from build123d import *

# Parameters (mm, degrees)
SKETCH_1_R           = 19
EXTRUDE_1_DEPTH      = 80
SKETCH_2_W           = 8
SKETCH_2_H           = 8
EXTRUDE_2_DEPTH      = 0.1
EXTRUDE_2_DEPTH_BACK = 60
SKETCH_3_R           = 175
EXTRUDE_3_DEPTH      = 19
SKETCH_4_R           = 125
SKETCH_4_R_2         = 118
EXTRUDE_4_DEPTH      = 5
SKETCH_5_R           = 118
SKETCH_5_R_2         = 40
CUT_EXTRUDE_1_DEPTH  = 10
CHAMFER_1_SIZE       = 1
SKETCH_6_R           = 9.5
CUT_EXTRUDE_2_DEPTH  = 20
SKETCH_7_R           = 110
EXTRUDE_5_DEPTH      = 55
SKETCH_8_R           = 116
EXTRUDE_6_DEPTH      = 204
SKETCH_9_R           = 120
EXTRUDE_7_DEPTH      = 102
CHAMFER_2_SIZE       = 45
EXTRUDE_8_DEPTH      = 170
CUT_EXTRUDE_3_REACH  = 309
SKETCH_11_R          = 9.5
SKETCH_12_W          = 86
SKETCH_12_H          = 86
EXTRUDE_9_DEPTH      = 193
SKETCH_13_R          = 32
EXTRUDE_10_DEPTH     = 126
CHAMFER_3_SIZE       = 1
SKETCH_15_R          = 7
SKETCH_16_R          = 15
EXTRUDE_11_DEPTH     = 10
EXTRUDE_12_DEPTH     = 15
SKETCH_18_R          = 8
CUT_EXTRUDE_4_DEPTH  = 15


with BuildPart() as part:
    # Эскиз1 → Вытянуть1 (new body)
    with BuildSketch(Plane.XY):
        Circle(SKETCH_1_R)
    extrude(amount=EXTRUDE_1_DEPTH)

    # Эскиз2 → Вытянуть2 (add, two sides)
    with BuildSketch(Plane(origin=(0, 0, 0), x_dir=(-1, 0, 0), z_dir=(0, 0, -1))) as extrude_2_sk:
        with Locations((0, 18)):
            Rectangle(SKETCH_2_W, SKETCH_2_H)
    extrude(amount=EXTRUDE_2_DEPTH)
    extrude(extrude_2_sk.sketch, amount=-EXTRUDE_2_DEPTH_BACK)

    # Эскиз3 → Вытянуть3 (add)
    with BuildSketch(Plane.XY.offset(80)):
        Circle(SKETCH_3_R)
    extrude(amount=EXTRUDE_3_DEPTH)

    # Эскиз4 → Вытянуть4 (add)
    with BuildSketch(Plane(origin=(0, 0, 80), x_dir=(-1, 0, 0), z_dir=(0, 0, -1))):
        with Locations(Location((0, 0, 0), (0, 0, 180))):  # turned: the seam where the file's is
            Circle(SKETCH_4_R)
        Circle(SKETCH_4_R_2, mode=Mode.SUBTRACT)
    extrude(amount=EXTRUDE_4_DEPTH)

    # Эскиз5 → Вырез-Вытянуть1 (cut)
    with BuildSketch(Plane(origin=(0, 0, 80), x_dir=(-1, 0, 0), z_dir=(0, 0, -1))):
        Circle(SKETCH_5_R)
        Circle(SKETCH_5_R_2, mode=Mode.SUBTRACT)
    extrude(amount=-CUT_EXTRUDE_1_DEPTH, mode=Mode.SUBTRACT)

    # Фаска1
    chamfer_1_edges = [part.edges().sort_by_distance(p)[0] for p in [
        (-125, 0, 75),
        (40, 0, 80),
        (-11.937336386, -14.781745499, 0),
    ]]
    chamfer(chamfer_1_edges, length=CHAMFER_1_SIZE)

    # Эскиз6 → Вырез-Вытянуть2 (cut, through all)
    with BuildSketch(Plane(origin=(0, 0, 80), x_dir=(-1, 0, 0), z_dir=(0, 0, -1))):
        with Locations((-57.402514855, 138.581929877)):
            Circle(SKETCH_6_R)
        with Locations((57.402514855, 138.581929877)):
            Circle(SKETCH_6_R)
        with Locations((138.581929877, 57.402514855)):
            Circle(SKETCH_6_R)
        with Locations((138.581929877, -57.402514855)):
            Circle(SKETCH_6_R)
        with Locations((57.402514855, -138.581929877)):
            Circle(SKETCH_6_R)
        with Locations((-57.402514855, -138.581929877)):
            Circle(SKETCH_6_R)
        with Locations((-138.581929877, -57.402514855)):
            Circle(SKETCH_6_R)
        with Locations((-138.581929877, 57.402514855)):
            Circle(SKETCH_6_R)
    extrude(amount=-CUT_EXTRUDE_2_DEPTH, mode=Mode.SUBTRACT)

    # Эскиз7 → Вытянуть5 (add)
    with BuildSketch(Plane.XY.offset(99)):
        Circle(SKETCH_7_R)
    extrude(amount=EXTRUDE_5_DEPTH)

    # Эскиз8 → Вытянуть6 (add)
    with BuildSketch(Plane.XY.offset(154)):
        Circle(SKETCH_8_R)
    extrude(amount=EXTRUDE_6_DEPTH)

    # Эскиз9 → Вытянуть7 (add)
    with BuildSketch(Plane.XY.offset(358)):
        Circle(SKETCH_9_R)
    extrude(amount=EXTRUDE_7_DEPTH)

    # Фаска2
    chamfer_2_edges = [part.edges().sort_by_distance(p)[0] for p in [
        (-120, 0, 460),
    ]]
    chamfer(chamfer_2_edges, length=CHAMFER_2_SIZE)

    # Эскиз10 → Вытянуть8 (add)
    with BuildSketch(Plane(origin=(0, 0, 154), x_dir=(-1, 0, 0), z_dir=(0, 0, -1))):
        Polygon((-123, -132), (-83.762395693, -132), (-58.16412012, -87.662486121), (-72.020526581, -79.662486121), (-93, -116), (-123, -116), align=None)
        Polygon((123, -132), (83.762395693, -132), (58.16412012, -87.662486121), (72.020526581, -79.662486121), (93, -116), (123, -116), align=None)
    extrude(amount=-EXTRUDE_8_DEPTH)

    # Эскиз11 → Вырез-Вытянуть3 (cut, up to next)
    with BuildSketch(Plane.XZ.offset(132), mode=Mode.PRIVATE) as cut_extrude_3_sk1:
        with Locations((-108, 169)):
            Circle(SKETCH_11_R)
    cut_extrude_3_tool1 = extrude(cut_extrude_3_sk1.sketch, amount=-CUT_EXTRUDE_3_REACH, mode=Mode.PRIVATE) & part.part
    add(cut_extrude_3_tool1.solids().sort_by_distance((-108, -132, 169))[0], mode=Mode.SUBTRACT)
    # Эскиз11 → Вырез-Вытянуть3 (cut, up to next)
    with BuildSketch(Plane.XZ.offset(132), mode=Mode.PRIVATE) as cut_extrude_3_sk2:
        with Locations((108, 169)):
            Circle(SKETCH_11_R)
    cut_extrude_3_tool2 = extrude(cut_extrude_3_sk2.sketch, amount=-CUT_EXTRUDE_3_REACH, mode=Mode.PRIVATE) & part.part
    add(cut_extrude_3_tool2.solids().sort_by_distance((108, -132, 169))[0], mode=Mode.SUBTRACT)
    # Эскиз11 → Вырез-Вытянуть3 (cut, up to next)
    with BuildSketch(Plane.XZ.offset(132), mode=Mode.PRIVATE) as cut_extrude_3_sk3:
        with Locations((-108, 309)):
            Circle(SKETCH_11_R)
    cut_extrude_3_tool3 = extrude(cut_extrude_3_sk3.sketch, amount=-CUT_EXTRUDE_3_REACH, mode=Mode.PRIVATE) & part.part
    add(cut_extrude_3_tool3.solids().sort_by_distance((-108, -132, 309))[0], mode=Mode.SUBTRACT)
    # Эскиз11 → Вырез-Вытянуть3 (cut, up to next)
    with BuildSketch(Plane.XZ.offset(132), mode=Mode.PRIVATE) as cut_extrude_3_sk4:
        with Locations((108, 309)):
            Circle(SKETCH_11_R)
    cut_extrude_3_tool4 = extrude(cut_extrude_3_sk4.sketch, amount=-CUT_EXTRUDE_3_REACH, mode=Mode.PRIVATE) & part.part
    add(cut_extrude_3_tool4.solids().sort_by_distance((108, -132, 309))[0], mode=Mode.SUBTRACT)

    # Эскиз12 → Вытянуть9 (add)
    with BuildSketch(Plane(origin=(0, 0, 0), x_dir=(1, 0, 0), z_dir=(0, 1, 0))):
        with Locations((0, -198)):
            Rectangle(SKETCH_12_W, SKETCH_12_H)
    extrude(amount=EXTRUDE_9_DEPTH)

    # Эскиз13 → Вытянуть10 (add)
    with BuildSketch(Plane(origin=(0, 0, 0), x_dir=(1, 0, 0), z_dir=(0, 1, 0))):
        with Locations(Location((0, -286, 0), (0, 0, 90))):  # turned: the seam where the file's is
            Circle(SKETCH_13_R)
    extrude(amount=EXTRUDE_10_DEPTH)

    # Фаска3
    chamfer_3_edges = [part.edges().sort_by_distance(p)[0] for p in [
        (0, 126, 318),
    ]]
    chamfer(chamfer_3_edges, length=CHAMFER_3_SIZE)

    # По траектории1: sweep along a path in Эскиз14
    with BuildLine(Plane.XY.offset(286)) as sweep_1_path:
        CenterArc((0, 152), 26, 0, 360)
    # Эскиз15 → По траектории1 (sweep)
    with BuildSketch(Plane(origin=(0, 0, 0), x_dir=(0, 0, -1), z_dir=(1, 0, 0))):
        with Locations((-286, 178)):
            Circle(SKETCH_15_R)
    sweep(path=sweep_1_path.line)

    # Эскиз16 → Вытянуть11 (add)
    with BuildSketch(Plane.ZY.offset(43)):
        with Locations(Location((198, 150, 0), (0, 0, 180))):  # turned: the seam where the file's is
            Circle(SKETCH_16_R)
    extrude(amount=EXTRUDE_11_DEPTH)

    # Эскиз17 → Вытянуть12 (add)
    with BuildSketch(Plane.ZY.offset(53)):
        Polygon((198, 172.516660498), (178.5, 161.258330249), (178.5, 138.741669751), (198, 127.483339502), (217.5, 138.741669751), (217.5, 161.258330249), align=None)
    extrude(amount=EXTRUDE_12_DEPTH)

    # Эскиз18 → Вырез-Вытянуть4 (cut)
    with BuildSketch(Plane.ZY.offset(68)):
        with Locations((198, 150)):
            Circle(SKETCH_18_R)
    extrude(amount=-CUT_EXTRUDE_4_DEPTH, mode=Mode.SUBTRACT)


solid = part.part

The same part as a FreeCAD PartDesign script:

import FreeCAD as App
import Part
import Sketcher
from FreeCAD import Vector
Q = App.Units.Quantity


def edges_at(feature, points):
    """Names of the edges that pass closest to the given points."""
    edges = feature.Shape.Edges
    near = lambda p: min(range(len(edges)), key=lambda i: edges[i].distToShape(Part.Vertex(*p))[0])
    return sorted({f"Edge{near(p) + 1}" for p in points})


def add_polygon(sketch, points):
    """Adds a closed chain of lines whose ends are joined by coincident constraints."""
    first, n = sketch.GeometryCount, len(points)
    for a, b in zip(points, points[1:] + points[:1]):
        sketch.addGeometry(Part.LineSegment(App.Vector(*a, 0), App.Vector(*b, 0)), False)
    for i in range(n):
        sketch.addConstraint(Sketcher.Constraint("Coincident", first + i, 2, first + (i + 1) % n, 1))

doc = App.newDocument("Part")
body = doc.addObject("PartDesign::Body", "Body")

# Sketch on XY plane
sketch1 = doc.addObject("Sketcher::SketchObject", "Sketch")
body.addObject(sketch1)
sketch1.AttachmentSupport = (doc.XY_Plane, [""])
sketch1.MapMode = "FlatFace"
sketch1.addGeometry(Part.Circle(Vector(0, 0, 0), Vector(0, 0, 1), 19), False)
sketch1.addConstraint([
    Sketcher.Constraint("Coincident", 0, 3, -1, 1),
    Sketcher.Constraint("Diameter", 0, Q("38 mm")),
])
pad1 = doc.addObject("PartDesign::Pad", "Pad")
body.addObject(pad1)
pad1.Profile = sketch1
pad1.Length = 80

# Sketch on XY plane
sketch2 = doc.addObject("Sketcher::SketchObject", "Sketch001")
body.addObject(sketch2)
sketch2.AttachmentSupport = (doc.XY_Plane, [""])
sketch2.MapMode = "FlatFace"
add_polygon(sketch2, [(4, 22), (4, 14), (-4, 14), (-4, 22)])  # lines 0-3
sketch2.addConstraint([
    Sketcher.Constraint("Vertical", 0),
    Sketcher.Constraint("Horizontal", 1),
    Sketcher.Constraint("Vertical", 2),
    Sketcher.Constraint("Horizontal", 3),
    Sketcher.Constraint("Equal", 3, 0),
    Sketcher.Constraint("DistanceX", 1, 2, 1, 1, Q("8 mm")),
    Sketcher.Constraint("DistanceX", -1, 1, 0, 2, Q("4 mm")),
    Sketcher.Constraint("DistanceY", -1, 1, 0, 2, Q("14 mm")),
])
pad2 = doc.addObject("PartDesign::Pad", "Pad001")
body.addObject(pad2)
pad2.Profile = sketch2
pad2.Type = "TwoLengths"
pad2.Length = 0.1
pad2.Length2 = 60
pad2.Reversed = True

# Sketch on XY plane
sketch3 = doc.addObject("Sketcher::SketchObject", "Sketch002")
body.addObject(sketch3)
sketch3.AttachmentSupport = (doc.XY_Plane, [""])
sketch3.MapMode = "FlatFace"
sketch3.AttachmentOffset = App.Placement(Vector(0, 0, 80), App.Rotation())
sketch3.addGeometry(Part.Circle(Vector(0, 0, 0), Vector(0, 0, 1), 175), False)
sketch3.addConstraint([
    Sketcher.Constraint("Coincident", 0, 3, -1, 1),
    Sketcher.Constraint("Diameter", 0, Q("350 mm")),
])
pad3 = doc.addObject("PartDesign::Pad", "Pad002")
body.addObject(pad3)
pad3.Profile = sketch3
pad3.Length = 19

# Sketch on XY plane
sketch4 = doc.addObject("Sketcher::SketchObject", "Sketch003")
body.addObject(sketch4)
sketch4.AttachmentSupport = (doc.XY_Plane, [""])
sketch4.MapMode = "FlatFace"
sketch4.AttachmentOffset = App.Placement(Vector(0, 0, 80), App.Rotation())
sketch4.addGeometry([
    Part.Circle(Vector(0, 0, 0), Vector(0, 0, 1), 125),
    Part.Circle(Vector(0, 0, 0), Vector(0, 0, 1), 118),
], False)
sketch4.addConstraint([
    Sketcher.Constraint("Coincident", 0, 3, -1, 1),
    Sketcher.Constraint("Coincident", 1, 3, -1, 1),
    Sketcher.Constraint("Diameter", 0, Q("250 mm")),
    Sketcher.Constraint("Diameter", 1, Q("236 mm")),
])
pad4 = doc.addObject("PartDesign::Pad", "Pad003")
body.addObject(pad4)
pad4.Profile = sketch4
pad4.Length = 5
pad4.Reversed = True

# Sketch on XY plane
sketch5 = doc.addObject("Sketcher::SketchObject", "Sketch004")
body.addObject(sketch5)
sketch5.AttachmentSupport = (doc.XY_Plane, [""])
sketch5.MapMode = "FlatFace"
sketch5.AttachmentOffset = App.Placement(Vector(0, 0, 80), App.Rotation())
sketch5.addGeometry([
    Part.Circle(Vector(0, 0, 0), Vector(0, 0, 1), 118),
    Part.Circle(Vector(0, 0, 0), Vector(0, 0, 1), 40),
], False)
sketch5.addConstraint([
    Sketcher.Constraint("Coincident", 0, 3, -1, 1),
    Sketcher.Constraint("Coincident", 1, 3, -1, 1),
    Sketcher.Constraint("Diameter", 0, Q("236 mm")),
    Sketcher.Constraint("Diameter", 1, Q("80 mm")),
])
pocket1 = doc.addObject("PartDesign::Pocket", "Pocket")
body.addObject(pocket1)
pocket1.Profile = sketch5
pocket1.Length = 10
pocket1.Reversed = True
doc.recompute()

chamfer = doc.addObject("PartDesign::Chamfer", "Chamfer")
body.addObject(chamfer)
chamfer.Base = (pocket1, edges_at(pocket1, [(-125, 0, 75), (40, 0, 80), (-11.937, -14.782, 0)]))
chamfer.Size = 1

# Sketch on XY plane
sketch6 = doc.addObject("Sketcher::SketchObject", "Sketch005")
body.addObject(sketch6)
sketch6.AttachmentSupport = (doc.XY_Plane, [""])
sketch6.MapMode = "FlatFace"
sketch6.AttachmentOffset = App.Placement(Vector(0, 0, 80), App.Rotation())
sketch6.addGeometry([
    Part.Circle(Vector(57, 139, 0), Vector(0, 0, 1), 10),  # 0
    Part.Circle(Vector(-57, 139, 0), Vector(0, 0, 1), 10),  # 1
    Part.Circle(Vector(-139, 57, 0), Vector(0, 0, 1), 10),  # 2
    Part.Circle(Vector(-139, -57, 0), Vector(0, 0, 1), 10),  # 3
    Part.Circle(Vector(-57, -139, 0), Vector(0, 0, 1), 10),  # 4
    Part.Circle(Vector(57, -139, 0), Vector(0, 0, 1), 10),  # 5
    Part.Circle(Vector(139, -57, 0), Vector(0, 0, 1), 10),  # 6
    Part.Circle(Vector(139, 57, 0), Vector(0, 0, 1), 10),  # 7
], False)
sketch6.addConstraint([
    Sketcher.Constraint("Equal", 0, 1),
    Sketcher.Constraint("Equal", 1, 2),
    Sketcher.Constraint("Equal", 2, 3),
    Sketcher.Constraint("Equal", 3, 4),
    Sketcher.Constraint("Equal", 4, 5),
    Sketcher.Constraint("Equal", 5, 6),
    Sketcher.Constraint("Equal", 6, 7),
    Sketcher.Constraint("Symmetric", 0, 3, 4, 3, -1, 1),
    Sketcher.Constraint("Symmetric", 1, 3, 5, 3, -1, 1),
    Sketcher.Constraint("Symmetric", 2, 3, 6, 3, -1, 1),
    Sketcher.Constraint("Symmetric", 3, 3, 7, 3, -1, 1),
    Sketcher.Constraint("Symmetric", 0, 3, 1, 3, -2),
    Sketcher.Constraint("Symmetric", 3, 3, 6, 3, -2),
    Sketcher.Constraint("Diameter", 0, Q("19 mm")),
    Sketcher.Constraint("DistanceY", -1, 1, 0, 3, Q("138.58193 mm")),
    Sketcher.Constraint("DistanceX", 2, 3, -1, 1, Q("138.58193 mm")),
    Sketcher.Constraint("DistanceX", 1, 3, 0, 3, Q("114.80503 mm")),
    Sketcher.Constraint("DistanceY", 3, 3, 2, 3, Q("114.80503 mm")),
])
pocket2 = doc.addObject("PartDesign::Pocket", "Pocket001")
body.addObject(pocket2)
pocket2.Profile = sketch6
pocket2.Type = "ThroughAll"
pocket2.Reversed = True

# Sketch on XY plane
sketch7 = doc.addObject("Sketcher::SketchObject", "Sketch006")
body.addObject(sketch7)
sketch7.AttachmentSupport = (doc.XY_Plane, [""])
sketch7.MapMode = "FlatFace"
sketch7.AttachmentOffset = App.Placement(Vector(0, 0, 99), App.Rotation())
sketch7.addGeometry(Part.Circle(Vector(0, 0, 0), Vector(0, 0, 1), 110), False)
sketch7.addConstraint([
    Sketcher.Constraint("Coincident", 0, 3, -1, 1),
    Sketcher.Constraint("Diameter", 0, Q("220 mm")),
])
pad5 = doc.addObject("PartDesign::Pad", "Pad004")
body.addObject(pad5)
pad5.Profile = sketch7
pad5.Length = 55

# Sketch on XY plane
sketch8 = doc.addObject("Sketcher::SketchObject", "Sketch007")
body.addObject(sketch8)
sketch8.AttachmentSupport = (doc.XY_Plane, [""])
sketch8.MapMode = "FlatFace"
sketch8.AttachmentOffset = App.Placement(Vector(0, 0, 154), App.Rotation())
sketch8.addGeometry(Part.Circle(Vector(0, 0, 0), Vector(0, 0, 1), 116), False)
sketch8.addConstraint([
    Sketcher.Constraint("Coincident", 0, 3, -1, 1),
    Sketcher.Constraint("Diameter", 0, Q("232 mm")),
])
pad6 = doc.addObject("PartDesign::Pad", "Pad005")
body.addObject(pad6)
pad6.Profile = sketch8
pad6.Length = 204

# Sketch on XY plane
sketch9 = doc.addObject("Sketcher::SketchObject", "Sketch008")
body.addObject(sketch9)
sketch9.AttachmentSupport = (doc.XY_Plane, [""])
sketch9.MapMode = "FlatFace"
sketch9.AttachmentOffset = App.Placement(Vector(0, 0, 358), App.Rotation())
sketch9.addGeometry(Part.Circle(Vector(0, 0, 0), Vector(0, 0, 1), 120), False)
sketch9.addConstraint([
    Sketcher.Constraint("Coincident", 0, 3, -1, 1),
    Sketcher.Constraint("Diameter", 0, Q("240 mm")),
])
pad7 = doc.addObject("PartDesign::Pad", "Pad006")
body.addObject(pad7)
pad7.Profile = sketch9
pad7.Length = 102
doc.recompute()

chamfer2 = doc.addObject("PartDesign::Chamfer", "Chamfer001")
body.addObject(chamfer2)
chamfer2.Base = (pad7, edges_at(pad7, [(-120, 0, 460)]))
chamfer2.Size = 45

# Sketch on XY plane
sketch10 = doc.addObject("Sketcher::SketchObject", "Sketch009")
body.addObject(sketch10)
sketch10.AttachmentSupport = (doc.XY_Plane, [""])
sketch10.MapMode = "FlatFace"
sketch10.AttachmentOffset = App.Placement(Vector(0, 0, 154), App.Rotation())
add_polygon(sketch10, [(123, -132), (84, -132), (58, -88), (72, -80), (93, -116), (123, -116)])  # lines 0-5
add_polygon(sketch10, [(-84, -132), (-123, -132), (-123, -116), (-93, -116), (-72, -80), (-58, -88)])  # lines 6-11
sketch10.addConstraint([
    Sketcher.Constraint("Horizontal", 0),
    Sketcher.Constraint("Horizontal", 4),
    Sketcher.Constraint("Vertical", 5),
    Sketcher.Constraint("Horizontal", 6),
    Sketcher.Constraint("Vertical", 7),
    Sketcher.Constraint("Horizontal", 8),
    Sketcher.Constraint("Symmetric", 5, 2, 6, 2, -2),
    Sketcher.Constraint("Symmetric", 3, 2, 8, 2, -2),
    Sketcher.Constraint("Symmetric", 2, 2, 9, 2, -2),
    Sketcher.Constraint("Symmetric", 1, 2, 10, 2, -2),
    Sketcher.Constraint("Perpendicular", 1, 2),
    Sketcher.Constraint("Perpendicular", 2, 3),
    Sketcher.Constraint("Perpendicular", 10, 11),
    Sketcher.Constraint("DistanceX", 4, 1, 4, 2, Q("30 mm")),
    Sketcher.Constraint("DistanceY", 5, 2, 5, 1, Q("16 mm")),
    Sketcher.Constraint("Angle", 1, Q("120 deg")),
    Sketcher.Constraint("Distance", 2, Q("16 mm")),
    Sketcher.Constraint("DistanceY", 0, 2, -1, 1, Q("132 mm")),
    Sketcher.Constraint("DistanceX", -1, 1, 3, 2, Q("93 mm")),
    Sketcher.Constraint("Distance", 1, Q("51.196551 mm")),
])
pad8 = doc.addObject("PartDesign::Pad", "Pad007")
body.addObject(pad8)
pad8.Profile = sketch10
pad8.Length = 170

# Sketch on XZ plane
sketch11 = doc.addObject("Sketcher::SketchObject", "Sketch010")
body.addObject(sketch11)
sketch11.AttachmentSupport = (doc.XZ_Plane, [""])
sketch11.MapMode = "FlatFace"
sketch11.AttachmentOffset = App.Placement(Vector(0, 0, 132), App.Rotation())
sketch11.addGeometry(Part.Circle(Vector(-108, 169, 0), Vector(0, 0, 1), 10), False)
sketch11.addConstraint([
    Sketcher.Constraint("Diameter", 0, Q("19 mm")),
    Sketcher.Constraint("DistanceX", 0, 3, -1, 1, Q("108 mm")),
    Sketcher.Constraint("DistanceY", -1, 1, 0, 3, Q("169 mm")),
])
pocket3 = doc.addObject("PartDesign::Pocket", "Pocket002")
body.addObject(pocket3)
pocket3.Profile = sketch11
pocket3.Type = "UpToFirst"

# Sketch on XZ plane
sketch12 = doc.addObject("Sketcher::SketchObject", "Sketch011")
body.addObject(sketch12)
sketch12.AttachmentSupport = (doc.XZ_Plane, [""])
sketch12.MapMode = "FlatFace"
sketch12.AttachmentOffset = App.Placement(Vector(0, 0, 132), App.Rotation())
sketch12.addGeometry(Part.Circle(Vector(108, 169, 0), Vector(0, 0, 1), 10), False)
sketch12.addConstraint([
    Sketcher.Constraint("Diameter", 0, Q("19 mm")),
    Sketcher.Constraint("DistanceX", -1, 1, 0, 3, Q("108 mm")),
    Sketcher.Constraint("DistanceY", -1, 1, 0, 3, Q("169 mm")),
])
pocket4 = doc.addObject("PartDesign::Pocket", "Pocket003")
body.addObject(pocket4)
pocket4.Profile = sketch12
pocket4.Type = "UpToFirst"

# Sketch on XZ plane
sketch13 = doc.addObject("Sketcher::SketchObject", "Sketch012")
body.addObject(sketch13)
sketch13.AttachmentSupport = (doc.XZ_Plane, [""])
sketch13.MapMode = "FlatFace"
sketch13.AttachmentOffset = App.Placement(Vector(0, 0, 132), App.Rotation())
sketch13.addGeometry(Part.Circle(Vector(-108, 309, 0), Vector(0, 0, 1), 10), False)
sketch13.addConstraint([
    Sketcher.Constraint("Diameter", 0, Q("19 mm")),
    Sketcher.Constraint("DistanceX", 0, 3, -1, 1, Q("108 mm")),
    Sketcher.Constraint("DistanceY", -1, 1, 0, 3, Q("309 mm")),
])
pocket5 = doc.addObject("PartDesign::Pocket", "Pocket004")
body.addObject(pocket5)
pocket5.Profile = sketch13
pocket5.Type = "UpToFirst"

# Sketch on XZ plane
sketch14 = doc.addObject("Sketcher::SketchObject", "Sketch013")
body.addObject(sketch14)
sketch14.AttachmentSupport = (doc.XZ_Plane, [""])
sketch14.MapMode = "FlatFace"
sketch14.AttachmentOffset = App.Placement(Vector(0, 0, 132), App.Rotation())
sketch14.addGeometry(Part.Circle(Vector(108, 309, 0), Vector(0, 0, 1), 10), False)
sketch14.addConstraint([
    Sketcher.Constraint("Diameter", 0, Q("19 mm")),
    Sketcher.Constraint("DistanceX", -1, 1, 0, 3, Q("108 mm")),
    Sketcher.Constraint("DistanceY", -1, 1, 0, 3, Q("309 mm")),
])
pocket6 = doc.addObject("PartDesign::Pocket", "Pocket005")
body.addObject(pocket6)
pocket6.Profile = sketch14
pocket6.Type = "UpToFirst"

# Sketch on XZ plane
sketch15 = doc.addObject("Sketcher::SketchObject", "Sketch014")
body.addObject(sketch15)
sketch15.AttachmentSupport = (doc.XZ_Plane, [""])
sketch15.MapMode = "FlatFace"
add_polygon(sketch15, [(-43, 155), (-43, 241), (43, 241), (43, 155)])  # lines 0-3
sketch15.addConstraint([
    Sketcher.Constraint("Vertical", 0),
    Sketcher.Constraint("Horizontal", 1),
    Sketcher.Constraint("Vertical", 2),
    Sketcher.Constraint("Horizontal", 3),
    Sketcher.Constraint("Equal", 3, 0),
    Sketcher.Constraint("DistanceX", 1, 1, 1, 2, Q("86 mm")),
    Sketcher.Constraint("DistanceX", 0, 2, -1, 1, Q("43 mm")),
    Sketcher.Constraint("DistanceY", -1, 1, 0, 2, Q("241 mm")),
])
pad9 = doc.addObject("PartDesign::Pad", "Pad008")
body.addObject(pad9)
pad9.Profile = sketch15
pad9.Length = 193
pad9.Reversed = True

# Sketch on XZ plane
sketch16 = doc.addObject("Sketcher::SketchObject", "Sketch015")
body.addObject(sketch16)
sketch16.AttachmentSupport = (doc.XZ_Plane, [""])
sketch16.MapMode = "FlatFace"
sketch16.addGeometry(Part.Circle(Vector(0, 286, 0), Vector(0, 0, 1), 32), False)
sketch16.addConstraint([
    Sketcher.Constraint("PointOnObject", 0, 3, -2),
    Sketcher.Constraint("Diameter", 0, Q("64 mm")),
    Sketcher.Constraint("DistanceY", -1, 1, 0, 3, Q("286 mm")),
])
pad10 = doc.addObject("PartDesign::Pad", "Pad009")
body.addObject(pad10)
pad10.Profile = sketch16
pad10.Length = 126
pad10.Reversed = True
doc.recompute()

chamfer3 = doc.addObject("PartDesign::Chamfer", "Chamfer002")
body.addObject(chamfer3)
chamfer3.Base = (pad10, edges_at(pad10, [(0, 126, 318)]))
chamfer3.Size = 1

# Sketch on YZ plane
sketch17 = doc.addObject("Sketcher::SketchObject", "Sketch016")
body.addObject(sketch17)
sketch17.AttachmentSupport = (doc.YZ_Plane, [""])
sketch17.MapMode = "FlatFace"
sketch17.addGeometry(Part.Circle(Vector(178, 286, 0), Vector(0, 0, 1), 7), False)
sketch17.addConstraint([
    Sketcher.Constraint("Diameter", 0, Q("14 mm")),
    Sketcher.Constraint("DistanceX", -1, 1, 0, 3, Q("178 mm")),
    Sketcher.Constraint("DistanceY", -1, 1, 0, 3, Q("286 mm")),
])

# Sketch on XY plane
sketch18 = doc.addObject("Sketcher::SketchObject", "Sketch017")
body.addObject(sketch18)
sketch18.AttachmentSupport = (doc.XY_Plane, [""])
sketch18.MapMode = "FlatFace"
sketch18.AttachmentOffset = App.Placement(Vector(0, 0, 286), App.Rotation())
sketch18.addGeometry(Part.Circle(Vector(0, 152, 0), Vector(0, 0, 1), 26), False)
sketch18.addConstraint([
    Sketcher.Constraint("PointOnObject", 0, 3, -2),
    Sketcher.Constraint("Diameter", 0, Q("52 mm")),
    Sketcher.Constraint("DistanceY", -1, 1, 0, 3, Q("152 mm")),
])
doc.recompute()

additivepipe = doc.addObject("PartDesign::AdditivePipe", "AdditivePipe")
body.addObject(additivepipe)
additivepipe.Profile = sketch17
additivepipe.Spine = (sketch18, ["Edge1"])

# Sketch on YZ plane
sketch19 = doc.addObject("Sketcher::SketchObject", "Sketch018")
body.addObject(sketch19)
sketch19.AttachmentSupport = (doc.YZ_Plane, [""])
sketch19.MapMode = "FlatFace"
sketch19.AttachmentOffset = App.Placement(Vector(0, 0, -43), App.Rotation())
sketch19.addGeometry(Part.Circle(Vector(150, 198, 0), Vector(0, 0, 1), 15), False)
sketch19.addConstraint([
    Sketcher.Constraint("Diameter", 0, Q("30 mm")),
    Sketcher.Constraint("DistanceX", -1, 1, 0, 3, Q("150 mm")),
    Sketcher.Constraint("DistanceY", -1, 1, 0, 3, Q("198 mm")),
])
pad11 = doc.addObject("PartDesign::Pad", "Pad010")
body.addObject(pad11)
pad11.Profile = sketch19
pad11.Length = 10
pad11.Reversed = True

# Sketch on YZ plane
sketch20 = doc.addObject("Sketcher::SketchObject", "Sketch019")
body.addObject(sketch20)
sketch20.AttachmentSupport = (doc.YZ_Plane, [""])
sketch20.MapMode = "FlatFace"
sketch20.AttachmentOffset = App.Placement(Vector(0, 0, -53), App.Rotation())
add_polygon(sketch20, [(173, 198), (161, 178), (139, 178), (127, 198), (139, 218), (161, 218)])  # lines 0-5
sketch20.addConstraint([
    Sketcher.Constraint("Horizontal", 1),
    Sketcher.Constraint("Horizontal", 4),
    Sketcher.Constraint("Parallel", 0, 3),
    Sketcher.Constraint("Parallel", 2, 5),
    Sketcher.Constraint("Horizontal", 2, 2, 5, 2),
    Sketcher.Constraint("Vertical", 1, 2, 3, 2),
    Sketcher.Constraint("Vertical", 0, 2, 4, 2),
    Sketcher.Constraint("Angle", 0, Q("-120 deg")),
    Sketcher.Constraint("DistanceY", -1, 1, 2, 2, Q("198 mm")),
    Sketcher.Constraint("DistanceY", 1, 2, 3, 2, Q("39 mm")),
    Sketcher.Constraint("DistanceX", 1, 2, 1, 1, Q("22.51666 mm")),
    Sketcher.Constraint("DistanceX", -1, 1, 0, 2, Q("161.25833 mm")),
])
pad12 = doc.addObject("PartDesign::Pad", "Pad011")
body.addObject(pad12)
pad12.Profile = sketch20
pad12.Length = 15
pad12.Reversed = True

# Sketch on YZ plane
sketch21 = doc.addObject("Sketcher::SketchObject", "Sketch020")
body.addObject(sketch21)
sketch21.AttachmentSupport = (doc.YZ_Plane, [""])
sketch21.MapMode = "FlatFace"
sketch21.AttachmentOffset = App.Placement(Vector(0, 0, -68), App.Rotation())
sketch21.addGeometry(Part.Circle(Vector(150, 198, 0), Vector(0, 0, 1), 8), False)
sketch21.addConstraint([
    Sketcher.Constraint("Diameter", 0, Q("16 mm")),
    Sketcher.Constraint("DistanceX", -1, 1, 0, 3, Q("150 mm")),
    Sketcher.Constraint("DistanceY", -1, 1, 0, 3, Q("198 mm")),
])
pocket7 = doc.addObject("PartDesign::Pocket", "Pocket006")
body.addObject(pocket7)
pocket7.Profile = sketch21
pocket7.Length = 15
pocket7.Reversed = True

doc.recompute()
